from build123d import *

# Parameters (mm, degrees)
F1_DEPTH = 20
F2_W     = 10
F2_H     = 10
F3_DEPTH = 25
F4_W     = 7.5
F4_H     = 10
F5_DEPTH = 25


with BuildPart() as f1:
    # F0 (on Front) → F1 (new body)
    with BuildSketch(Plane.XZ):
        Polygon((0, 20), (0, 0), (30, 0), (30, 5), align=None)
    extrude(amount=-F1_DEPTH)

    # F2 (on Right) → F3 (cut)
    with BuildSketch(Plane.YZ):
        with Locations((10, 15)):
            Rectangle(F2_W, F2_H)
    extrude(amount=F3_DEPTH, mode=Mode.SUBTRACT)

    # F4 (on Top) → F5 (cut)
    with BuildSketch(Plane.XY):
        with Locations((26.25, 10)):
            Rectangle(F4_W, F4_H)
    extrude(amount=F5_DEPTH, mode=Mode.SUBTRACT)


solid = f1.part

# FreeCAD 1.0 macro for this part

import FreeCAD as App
import Part
import Sketcher
Q = App.Units.Quantity


def add_polygon(sketch, points):
    """Adds a closed chain of lines whose ends are joined by coincident constraints."""
    first, n = sketch.GeometryCount, len(points)
    for a, b in zip(points, points[1:] + points[:1]):
        sketch.addGeometry(Part.LineSegment(App.Vector(*a, 0), App.Vector(*b, 0)), False)
    for i in range(n):
        sketch.addConstraint(Sketcher.Constraint("Coincident", first + i, 2, first + (i + 1) % n, 1))

doc = App.newDocument("Part")
params = doc.addObject("Spreadsheet::Sheet", "Params")
for row, (alias, value) in enumerate([
    ("sketch1_width", "30 mm"),
    ("sketch1_height", "20 mm"),
    ("sketch1_height2", "5 mm"),
    ("pad1_length", "20 mm"),
    ("sketch2_width", "10 mm"),
    ("pocket1_length", "25 mm"),
    ("sketch3_height", "10 mm"),
    ("sketch3_width", "7.5 mm"),
    ("pocket2_length", "25 mm"),
], start=1):
    params.set(f"A{row}", alias)
    params.set(f"B{row}", "=" + value)
    params.setAlias(f"B{row}", alias)

body = doc.addObject("PartDesign::Body", "Body")

# Sketch on XZ plane
sketch1 = body.newObject("Sketcher::SketchObject", "Sketch")
sketch1.AttachmentSupport = (doc.getObject("XZ_Plane"), [""])
sketch1.MapMode = "FlatFace"
add_polygon(sketch1, [(0, 20), (0, 0), (30, 0), (30, 5)])  # lines 0-3
sketch1.addConstraint([
    Sketcher.Constraint("Vertical", 0),
    Sketcher.Constraint("Horizontal", 1),
    Sketcher.Constraint("Vertical", 2),
    Sketcher.Constraint("Coincident", 0, 2, -1, 1),
    Sketcher.Constraint("DistanceX", 1, 1, 1, 2, Q("30 mm")),
    Sketcher.Constraint("DistanceY", 0, 2, 0, 1, Q("20 mm")),
    Sketcher.Constraint("DistanceY", 2, 1, 2, 2, Q("5 mm")),
])
sketch1.setExpression("Constraints[8]", "Params.sketch1_width")
sketch1.setExpression("Constraints[9]", "Params.sketch1_height")
sketch1.setExpression("Constraints[10]", "Params.sketch1_height2")
pad1 = body.newObject("PartDesign::Pad", "Pad")
pad1.Profile = sketch1
pad1.setExpression("Length", "Params.pad1_length")
pad1.Reversed = True

# Sketch on YZ plane
sketch2 = body.newObject("Sketcher::SketchObject", "Sketch001")
sketch2.AttachmentSupport = (doc.getObject("YZ_Plane"), [""])
sketch2.MapMode = "FlatFace"
add_polygon(sketch2, [(5, 20), (5, 10), (15, 10), (15, 20)])  # lines 0-3
sketch2.addConstraint([
    Sketcher.Constraint("Vertical", 0),
    Sketcher.Constraint("Horizontal", 1),
    Sketcher.Constraint("Vertical", 2),
    Sketcher.Constraint("Horizontal", 3),
    Sketcher.Constraint("Equal", 3, 0),
    Sketcher.Constraint("DistanceX", 1, 1, 1, 2, Q("10 mm")),
    Sketcher.Constraint("DistanceX", -1, 1, 0, 2, Q("5 mm")),
    Sketcher.Constraint("DistanceY", -1, 1, 0, 2, Q("10 mm")),
])
sketch2.setExpression("Constraints[9]", "Params.sketch2_width")
pocket1 = body.newObject("PartDesign::Pocket", "Pocket")
pocket1.Profile = sketch2
pocket1.setExpression("Length", "Params.pocket1_length")
pocket1.Reversed = True

# Sketch on XY plane
sketch3 = body.newObject("Sketcher::SketchObject", "Sketch002")
sketch3.AttachmentSupport = (doc.getObject("XY_Plane"), [""])
sketch3.MapMode = "FlatFace"
add_polygon(sketch3, [(22, 15), (22, 5), (30, 5), (30, 15)])  # lines 0-3
sketch3.addConstraint([
    Sketcher.Constraint("Vertical", 0),
    Sketcher.Constraint("Horizontal", 1),
    Sketcher.Constraint("Vertical", 2),
    Sketcher.Constraint("Horizontal", 3),
    Sketcher.Constraint("DistanceY", 0, 2, 0, 1, Q("10 mm")),
    Sketcher.Constraint("DistanceX", 1, 1, 1, 2, Q("7.5 mm")),
    Sketcher.Constraint("DistanceY", -1, 1, 0, 2, Q("5 mm")),
    Sketcher.Constraint("DistanceX", -1, 1, 1, 2, Q("30 mm")),
])
sketch3.setExpression("Constraints[8]", "Params.sketch3_height")
sketch3.setExpression("Constraints[9]", "Params.sketch3_width")
pocket2 = body.newObject("PartDesign::Pocket", "Pocket001")
pocket2.Profile = sketch3
pocket2.setExpression("Length", "Params.pocket2_length")
pocket2.Reversed = True

doc.recompute()
